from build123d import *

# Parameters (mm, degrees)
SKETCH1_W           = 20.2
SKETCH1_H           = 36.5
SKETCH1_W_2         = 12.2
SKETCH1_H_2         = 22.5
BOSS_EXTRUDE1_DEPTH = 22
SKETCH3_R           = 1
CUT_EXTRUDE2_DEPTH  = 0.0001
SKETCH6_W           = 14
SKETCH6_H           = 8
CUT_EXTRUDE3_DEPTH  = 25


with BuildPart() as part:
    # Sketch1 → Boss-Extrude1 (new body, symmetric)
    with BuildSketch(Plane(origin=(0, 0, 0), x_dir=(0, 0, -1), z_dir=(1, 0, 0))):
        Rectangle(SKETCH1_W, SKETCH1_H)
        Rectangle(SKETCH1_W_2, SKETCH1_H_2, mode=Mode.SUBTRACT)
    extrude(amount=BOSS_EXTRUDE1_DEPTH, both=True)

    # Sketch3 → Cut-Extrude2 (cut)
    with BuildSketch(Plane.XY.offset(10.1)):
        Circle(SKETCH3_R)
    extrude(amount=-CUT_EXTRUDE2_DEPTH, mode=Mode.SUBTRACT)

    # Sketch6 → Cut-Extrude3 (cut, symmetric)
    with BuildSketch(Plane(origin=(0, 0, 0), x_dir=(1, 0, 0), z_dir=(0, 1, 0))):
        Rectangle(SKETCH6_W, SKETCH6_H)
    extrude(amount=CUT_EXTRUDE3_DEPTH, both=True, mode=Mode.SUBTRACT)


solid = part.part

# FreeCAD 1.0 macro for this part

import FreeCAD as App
import Part
import Sketcher
from FreeCAD import Vector


def add_polygon(sketch, points):
    """Adds a closed chain of lines whose ends are joined by coincident constraints."""
    first, n = sketch.GeometryCount, len(points)
    for a, b in zip(points, points[1:] + points[:1]):
        sketch.addGeometry(Part.LineSegment(App.Vector(*a, 0), App.Vector(*b, 0)), False)
    for i in range(n):
        sketch.addConstraint(Sketcher.Constraint("Coincident", first + i, 2, first + (i + 1) % n, 1))

doc = App.newDocument("Part")
body = doc.addObject("PartDesign::Body", "Body")

# Sketch on YZ plane
sketch1 = body.newObject("Sketcher::SketchObject", "Sketch")
sketch1.AttachmentSupport = (doc.getObject("YZ_Plane"), [""])
sketch1.MapMode = "FlatFace"
add_polygon(sketch1, [(18, 10), (-18, 10), (-18, -10), (18, -10)])  # lines 0-3
add_polygon(sketch1, [(-11, -6), (-11, 6), (11, 6), (11, -6)])  # lines 4-7
sketch1.addConstraint([
    Sketcher.Constraint("Horizontal", 0),
    Sketcher.Constraint("Vertical", 1),
    Sketcher.Constraint("Horizontal", 2),
    Sketcher.Constraint("Vertical", 3),
    Sketcher.Constraint("Vertical", 4),
    Sketcher.Constraint("Horizontal", 5),
    Sketcher.Constraint("Vertical", 6),
    Sketcher.Constraint("Horizontal", 7),
    Sketcher.Constraint("Symmetric", 0, 2, 2, 2, -1, 1),
    Sketcher.Constraint("Symmetric", 4, 2, 6, 2, -1, 1),
    Sketcher.Constraint("DistanceX", 0, 2, 0, 1, 36.5),
    Sketcher.Constraint("DistanceX", 5, 1, 5, 2, 22.5),
    Sketcher.Constraint("DistanceY", 1, 2, 1, 1, 20.2),
    Sketcher.Constraint("DistanceY", 4, 1, 4, 2, 12.2),
])
pad1 = body.newObject("PartDesign::Pad", "Pad")
pad1.Profile = sketch1
pad1.Length = 44
pad1.Midplane = True

# Sketch on XY plane
sketch2 = body.newObject("Sketcher::SketchObject", "Sketch001")
sketch2.AttachmentSupport = (doc.getObject("XY_Plane"), [""])
sketch2.MapMode = "FlatFace"
sketch2.AttachmentOffset = App.Placement(Vector(0, 0, 10.1), App.Rotation())
sketch2.addGeometry(Part.Circle(Vector(0, 0, 0), Vector(0, 0, 1), 1), False)
sketch2.addConstraint([
    Sketcher.Constraint("Coincident", 0, 3, -1, 1),
    Sketcher.Constraint("Diameter", 0, 2.0),
])
pocket1 = body.newObject("PartDesign::Pocket", "Pocket")
pocket1.Profile = sketch2
pocket1.Length = 0.0001

# Sketch on XZ plane
sketch3 = body.newObject("Sketcher::SketchObject", "Sketch002")
sketch3.AttachmentSupport = (doc.getObject("XZ_Plane"), [""])
sketch3.MapMode = "FlatFace"
add_polygon(sketch3, [(-7, -4), (-7, 4), (7, 4), (7, -4)])  # lines 0-3
sketch3.addConstraint([
    Sketcher.Constraint("Vertical", 0),
    Sketcher.Constraint("Horizontal", 1),
    Sketcher.Constraint("Vertical", 2),
    Sketcher.Constraint("Horizontal", 3),
    Sketcher.Constraint("Symmetric", 0, 2, 2, 2, -1, 1),
    Sketcher.Constraint("DistanceX", 1, 1, 1, 2, 14.0),
    Sketcher.Constraint("DistanceY", 0, 1, 0, 2, 8.0),
])
pocket2 = body.newObject("PartDesign::Pocket", "Pocket001")
pocket2.Profile = sketch3
pocket2.Length = 50
pocket2.Midplane = True

doc.recompute()
